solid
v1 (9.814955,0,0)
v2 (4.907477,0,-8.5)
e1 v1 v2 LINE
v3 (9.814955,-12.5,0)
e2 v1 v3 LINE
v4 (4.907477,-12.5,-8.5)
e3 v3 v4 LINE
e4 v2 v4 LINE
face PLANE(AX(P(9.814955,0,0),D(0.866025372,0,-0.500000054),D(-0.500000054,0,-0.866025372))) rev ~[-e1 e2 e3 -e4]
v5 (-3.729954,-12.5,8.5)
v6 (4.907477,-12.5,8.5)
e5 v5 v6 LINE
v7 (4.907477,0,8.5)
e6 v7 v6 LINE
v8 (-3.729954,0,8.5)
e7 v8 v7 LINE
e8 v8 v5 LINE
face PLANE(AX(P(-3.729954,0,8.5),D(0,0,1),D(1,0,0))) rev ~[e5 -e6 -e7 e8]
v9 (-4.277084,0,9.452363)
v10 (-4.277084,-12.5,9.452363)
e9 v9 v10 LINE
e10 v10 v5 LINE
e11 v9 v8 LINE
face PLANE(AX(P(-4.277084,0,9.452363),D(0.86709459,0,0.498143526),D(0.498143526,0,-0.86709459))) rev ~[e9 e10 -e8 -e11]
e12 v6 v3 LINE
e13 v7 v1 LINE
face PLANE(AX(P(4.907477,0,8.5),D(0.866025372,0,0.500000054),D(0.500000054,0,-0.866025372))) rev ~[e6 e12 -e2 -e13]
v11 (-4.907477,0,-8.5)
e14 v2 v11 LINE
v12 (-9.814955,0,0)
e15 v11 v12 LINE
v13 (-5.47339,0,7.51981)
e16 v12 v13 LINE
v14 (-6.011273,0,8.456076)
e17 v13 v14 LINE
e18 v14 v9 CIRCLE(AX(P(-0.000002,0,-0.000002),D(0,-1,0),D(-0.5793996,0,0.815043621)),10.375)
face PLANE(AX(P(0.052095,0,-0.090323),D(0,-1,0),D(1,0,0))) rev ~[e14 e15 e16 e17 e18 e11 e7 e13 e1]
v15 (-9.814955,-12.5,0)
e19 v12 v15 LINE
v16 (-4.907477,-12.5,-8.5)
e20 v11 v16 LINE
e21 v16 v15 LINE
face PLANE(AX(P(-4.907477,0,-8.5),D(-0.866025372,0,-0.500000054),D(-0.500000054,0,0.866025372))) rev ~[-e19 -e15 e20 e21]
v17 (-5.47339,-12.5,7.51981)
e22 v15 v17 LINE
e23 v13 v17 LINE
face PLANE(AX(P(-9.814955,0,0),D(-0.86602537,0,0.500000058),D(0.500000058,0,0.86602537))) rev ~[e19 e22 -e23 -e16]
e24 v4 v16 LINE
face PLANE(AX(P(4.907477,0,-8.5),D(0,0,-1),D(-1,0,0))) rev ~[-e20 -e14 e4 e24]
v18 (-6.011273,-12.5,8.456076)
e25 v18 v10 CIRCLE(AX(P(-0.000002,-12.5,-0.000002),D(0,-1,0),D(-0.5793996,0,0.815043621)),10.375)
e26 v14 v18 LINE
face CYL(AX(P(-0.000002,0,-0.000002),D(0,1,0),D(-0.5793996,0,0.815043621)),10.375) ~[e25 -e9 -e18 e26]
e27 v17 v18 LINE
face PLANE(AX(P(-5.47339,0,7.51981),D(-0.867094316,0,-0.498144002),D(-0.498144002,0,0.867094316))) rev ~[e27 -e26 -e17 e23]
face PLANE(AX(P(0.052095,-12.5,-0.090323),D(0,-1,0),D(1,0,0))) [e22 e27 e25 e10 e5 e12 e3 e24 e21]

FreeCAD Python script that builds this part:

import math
import FreeCAD as App
import Part
import Sketcher
Q = App.Units.Quantity

doc = App.newDocument("Part")
body = doc.addObject("PartDesign::Body", "Body")

# Sketch on XZ plane
sketch1 = body.newObject("Sketcher::SketchObject", "Sketch")
sketch1.AttachmentSupport = (doc.getObject("XZ_Plane"), [""])
sketch1.MapMode = "FlatFace"
sketch1.addGeometry([
    Part.LineSegment(App.Vector(4.9, 8.5, 0), App.Vector(9.8, 0, 0)),  # 0
    Part.LineSegment(App.Vector(9.8, 0, 0), App.Vector(4.9, -8.5, 0)),  # 1
    Part.LineSegment(App.Vector(4.9, -8.5, 0), App.Vector(-4.9, -8.5, 0)),  # 2
    Part.LineSegment(App.Vector(-4.9, -8.5, 0), App.Vector(-9.8, 0, 0)),  # 3
    Part.LineSegment(App.Vector(-9.8, 0, 0), App.Vector(-5.5, 7.5, 0)),  # 4
    Part.LineSegment(App.Vector(-5.5, 7.5, 0), App.Vector(-6, 8.5, 0)),  # 5
    Part.ArcOfCircle(Part.Circle(App.Vector(0, 0, 0), App.Vector(0, 0, 1), 10.4), math.radians(125), math.radians(474)),  # 6
    Part.LineSegment(App.Vector(-4.3, 9.5, 0), App.Vector(-3.7, 8.5, 0)),  # 7
    Part.LineSegment(App.Vector(-3.7, 8.5, 0), App.Vector(4.9, 8.5, 0)),  # 8
], False)
sketch1.addConstraint([
    Sketcher.Constraint("Coincident", 0, 2, 1, 1),
    Sketcher.Constraint("Coincident", 1, 2, 2, 1),
    Sketcher.Constraint("Coincident", 2, 2, 3, 1),
    Sketcher.Constraint("Coincident", 3, 2, 4, 1),
    Sketcher.Constraint("Coincident", 4, 2, 5, 1),
    Sketcher.Constraint("Coincident", 5, 2, 6, 1),
    Sketcher.Constraint("Coincident", 6, 2, 7, 1),
    Sketcher.Constraint("Coincident", 7, 2, 8, 1),
    Sketcher.Constraint("Coincident", 8, 2, 0, 1),
    Sketcher.Constraint("Horizontal", 2),
    Sketcher.Constraint("Horizontal", 8),
    Sketcher.Constraint("Coincident", 6, 3, -1, 1),
    Sketcher.Constraint("Symmetric", 0, 2, 3, 2, -1, 1),
    Sketcher.Constraint("Symmetric", 2, 2, 8, 2, -1, 1),
    Sketcher.Constraint("PointOnObject", 0, 2, -1),
    Sketcher.Constraint("Parallel", 1, 4),
    Sketcher.Constraint("Parallel", 5, 7),
    Sketcher.Constraint("Vertical", 1, 2, 8, 2),
    Sketcher.Constraint("Angle", 0, Q("-59.999996 deg")),
    Sketcher.Constraint("Radius", 6, 10.375),
    Sketcher.Constraint("DistanceY", 1, 2, -1, 1, 8.5),
    Sketcher.Constraint("DistanceX", 3, 2, 7, 2, 6.085001),
    Sketcher.Constraint("DistanceX", 8, 1, 8, 2, 8.637431),
    Sketcher.Constraint("Distance", 4, 8.683129),
    Sketcher.Constraint("Distance", 7, 1.098338),
])
pad1 = body.newObject("PartDesign::Pad", "Pad")
pad1.Profile = sketch1
pad1.Length = 12.5

doc.recompute()
